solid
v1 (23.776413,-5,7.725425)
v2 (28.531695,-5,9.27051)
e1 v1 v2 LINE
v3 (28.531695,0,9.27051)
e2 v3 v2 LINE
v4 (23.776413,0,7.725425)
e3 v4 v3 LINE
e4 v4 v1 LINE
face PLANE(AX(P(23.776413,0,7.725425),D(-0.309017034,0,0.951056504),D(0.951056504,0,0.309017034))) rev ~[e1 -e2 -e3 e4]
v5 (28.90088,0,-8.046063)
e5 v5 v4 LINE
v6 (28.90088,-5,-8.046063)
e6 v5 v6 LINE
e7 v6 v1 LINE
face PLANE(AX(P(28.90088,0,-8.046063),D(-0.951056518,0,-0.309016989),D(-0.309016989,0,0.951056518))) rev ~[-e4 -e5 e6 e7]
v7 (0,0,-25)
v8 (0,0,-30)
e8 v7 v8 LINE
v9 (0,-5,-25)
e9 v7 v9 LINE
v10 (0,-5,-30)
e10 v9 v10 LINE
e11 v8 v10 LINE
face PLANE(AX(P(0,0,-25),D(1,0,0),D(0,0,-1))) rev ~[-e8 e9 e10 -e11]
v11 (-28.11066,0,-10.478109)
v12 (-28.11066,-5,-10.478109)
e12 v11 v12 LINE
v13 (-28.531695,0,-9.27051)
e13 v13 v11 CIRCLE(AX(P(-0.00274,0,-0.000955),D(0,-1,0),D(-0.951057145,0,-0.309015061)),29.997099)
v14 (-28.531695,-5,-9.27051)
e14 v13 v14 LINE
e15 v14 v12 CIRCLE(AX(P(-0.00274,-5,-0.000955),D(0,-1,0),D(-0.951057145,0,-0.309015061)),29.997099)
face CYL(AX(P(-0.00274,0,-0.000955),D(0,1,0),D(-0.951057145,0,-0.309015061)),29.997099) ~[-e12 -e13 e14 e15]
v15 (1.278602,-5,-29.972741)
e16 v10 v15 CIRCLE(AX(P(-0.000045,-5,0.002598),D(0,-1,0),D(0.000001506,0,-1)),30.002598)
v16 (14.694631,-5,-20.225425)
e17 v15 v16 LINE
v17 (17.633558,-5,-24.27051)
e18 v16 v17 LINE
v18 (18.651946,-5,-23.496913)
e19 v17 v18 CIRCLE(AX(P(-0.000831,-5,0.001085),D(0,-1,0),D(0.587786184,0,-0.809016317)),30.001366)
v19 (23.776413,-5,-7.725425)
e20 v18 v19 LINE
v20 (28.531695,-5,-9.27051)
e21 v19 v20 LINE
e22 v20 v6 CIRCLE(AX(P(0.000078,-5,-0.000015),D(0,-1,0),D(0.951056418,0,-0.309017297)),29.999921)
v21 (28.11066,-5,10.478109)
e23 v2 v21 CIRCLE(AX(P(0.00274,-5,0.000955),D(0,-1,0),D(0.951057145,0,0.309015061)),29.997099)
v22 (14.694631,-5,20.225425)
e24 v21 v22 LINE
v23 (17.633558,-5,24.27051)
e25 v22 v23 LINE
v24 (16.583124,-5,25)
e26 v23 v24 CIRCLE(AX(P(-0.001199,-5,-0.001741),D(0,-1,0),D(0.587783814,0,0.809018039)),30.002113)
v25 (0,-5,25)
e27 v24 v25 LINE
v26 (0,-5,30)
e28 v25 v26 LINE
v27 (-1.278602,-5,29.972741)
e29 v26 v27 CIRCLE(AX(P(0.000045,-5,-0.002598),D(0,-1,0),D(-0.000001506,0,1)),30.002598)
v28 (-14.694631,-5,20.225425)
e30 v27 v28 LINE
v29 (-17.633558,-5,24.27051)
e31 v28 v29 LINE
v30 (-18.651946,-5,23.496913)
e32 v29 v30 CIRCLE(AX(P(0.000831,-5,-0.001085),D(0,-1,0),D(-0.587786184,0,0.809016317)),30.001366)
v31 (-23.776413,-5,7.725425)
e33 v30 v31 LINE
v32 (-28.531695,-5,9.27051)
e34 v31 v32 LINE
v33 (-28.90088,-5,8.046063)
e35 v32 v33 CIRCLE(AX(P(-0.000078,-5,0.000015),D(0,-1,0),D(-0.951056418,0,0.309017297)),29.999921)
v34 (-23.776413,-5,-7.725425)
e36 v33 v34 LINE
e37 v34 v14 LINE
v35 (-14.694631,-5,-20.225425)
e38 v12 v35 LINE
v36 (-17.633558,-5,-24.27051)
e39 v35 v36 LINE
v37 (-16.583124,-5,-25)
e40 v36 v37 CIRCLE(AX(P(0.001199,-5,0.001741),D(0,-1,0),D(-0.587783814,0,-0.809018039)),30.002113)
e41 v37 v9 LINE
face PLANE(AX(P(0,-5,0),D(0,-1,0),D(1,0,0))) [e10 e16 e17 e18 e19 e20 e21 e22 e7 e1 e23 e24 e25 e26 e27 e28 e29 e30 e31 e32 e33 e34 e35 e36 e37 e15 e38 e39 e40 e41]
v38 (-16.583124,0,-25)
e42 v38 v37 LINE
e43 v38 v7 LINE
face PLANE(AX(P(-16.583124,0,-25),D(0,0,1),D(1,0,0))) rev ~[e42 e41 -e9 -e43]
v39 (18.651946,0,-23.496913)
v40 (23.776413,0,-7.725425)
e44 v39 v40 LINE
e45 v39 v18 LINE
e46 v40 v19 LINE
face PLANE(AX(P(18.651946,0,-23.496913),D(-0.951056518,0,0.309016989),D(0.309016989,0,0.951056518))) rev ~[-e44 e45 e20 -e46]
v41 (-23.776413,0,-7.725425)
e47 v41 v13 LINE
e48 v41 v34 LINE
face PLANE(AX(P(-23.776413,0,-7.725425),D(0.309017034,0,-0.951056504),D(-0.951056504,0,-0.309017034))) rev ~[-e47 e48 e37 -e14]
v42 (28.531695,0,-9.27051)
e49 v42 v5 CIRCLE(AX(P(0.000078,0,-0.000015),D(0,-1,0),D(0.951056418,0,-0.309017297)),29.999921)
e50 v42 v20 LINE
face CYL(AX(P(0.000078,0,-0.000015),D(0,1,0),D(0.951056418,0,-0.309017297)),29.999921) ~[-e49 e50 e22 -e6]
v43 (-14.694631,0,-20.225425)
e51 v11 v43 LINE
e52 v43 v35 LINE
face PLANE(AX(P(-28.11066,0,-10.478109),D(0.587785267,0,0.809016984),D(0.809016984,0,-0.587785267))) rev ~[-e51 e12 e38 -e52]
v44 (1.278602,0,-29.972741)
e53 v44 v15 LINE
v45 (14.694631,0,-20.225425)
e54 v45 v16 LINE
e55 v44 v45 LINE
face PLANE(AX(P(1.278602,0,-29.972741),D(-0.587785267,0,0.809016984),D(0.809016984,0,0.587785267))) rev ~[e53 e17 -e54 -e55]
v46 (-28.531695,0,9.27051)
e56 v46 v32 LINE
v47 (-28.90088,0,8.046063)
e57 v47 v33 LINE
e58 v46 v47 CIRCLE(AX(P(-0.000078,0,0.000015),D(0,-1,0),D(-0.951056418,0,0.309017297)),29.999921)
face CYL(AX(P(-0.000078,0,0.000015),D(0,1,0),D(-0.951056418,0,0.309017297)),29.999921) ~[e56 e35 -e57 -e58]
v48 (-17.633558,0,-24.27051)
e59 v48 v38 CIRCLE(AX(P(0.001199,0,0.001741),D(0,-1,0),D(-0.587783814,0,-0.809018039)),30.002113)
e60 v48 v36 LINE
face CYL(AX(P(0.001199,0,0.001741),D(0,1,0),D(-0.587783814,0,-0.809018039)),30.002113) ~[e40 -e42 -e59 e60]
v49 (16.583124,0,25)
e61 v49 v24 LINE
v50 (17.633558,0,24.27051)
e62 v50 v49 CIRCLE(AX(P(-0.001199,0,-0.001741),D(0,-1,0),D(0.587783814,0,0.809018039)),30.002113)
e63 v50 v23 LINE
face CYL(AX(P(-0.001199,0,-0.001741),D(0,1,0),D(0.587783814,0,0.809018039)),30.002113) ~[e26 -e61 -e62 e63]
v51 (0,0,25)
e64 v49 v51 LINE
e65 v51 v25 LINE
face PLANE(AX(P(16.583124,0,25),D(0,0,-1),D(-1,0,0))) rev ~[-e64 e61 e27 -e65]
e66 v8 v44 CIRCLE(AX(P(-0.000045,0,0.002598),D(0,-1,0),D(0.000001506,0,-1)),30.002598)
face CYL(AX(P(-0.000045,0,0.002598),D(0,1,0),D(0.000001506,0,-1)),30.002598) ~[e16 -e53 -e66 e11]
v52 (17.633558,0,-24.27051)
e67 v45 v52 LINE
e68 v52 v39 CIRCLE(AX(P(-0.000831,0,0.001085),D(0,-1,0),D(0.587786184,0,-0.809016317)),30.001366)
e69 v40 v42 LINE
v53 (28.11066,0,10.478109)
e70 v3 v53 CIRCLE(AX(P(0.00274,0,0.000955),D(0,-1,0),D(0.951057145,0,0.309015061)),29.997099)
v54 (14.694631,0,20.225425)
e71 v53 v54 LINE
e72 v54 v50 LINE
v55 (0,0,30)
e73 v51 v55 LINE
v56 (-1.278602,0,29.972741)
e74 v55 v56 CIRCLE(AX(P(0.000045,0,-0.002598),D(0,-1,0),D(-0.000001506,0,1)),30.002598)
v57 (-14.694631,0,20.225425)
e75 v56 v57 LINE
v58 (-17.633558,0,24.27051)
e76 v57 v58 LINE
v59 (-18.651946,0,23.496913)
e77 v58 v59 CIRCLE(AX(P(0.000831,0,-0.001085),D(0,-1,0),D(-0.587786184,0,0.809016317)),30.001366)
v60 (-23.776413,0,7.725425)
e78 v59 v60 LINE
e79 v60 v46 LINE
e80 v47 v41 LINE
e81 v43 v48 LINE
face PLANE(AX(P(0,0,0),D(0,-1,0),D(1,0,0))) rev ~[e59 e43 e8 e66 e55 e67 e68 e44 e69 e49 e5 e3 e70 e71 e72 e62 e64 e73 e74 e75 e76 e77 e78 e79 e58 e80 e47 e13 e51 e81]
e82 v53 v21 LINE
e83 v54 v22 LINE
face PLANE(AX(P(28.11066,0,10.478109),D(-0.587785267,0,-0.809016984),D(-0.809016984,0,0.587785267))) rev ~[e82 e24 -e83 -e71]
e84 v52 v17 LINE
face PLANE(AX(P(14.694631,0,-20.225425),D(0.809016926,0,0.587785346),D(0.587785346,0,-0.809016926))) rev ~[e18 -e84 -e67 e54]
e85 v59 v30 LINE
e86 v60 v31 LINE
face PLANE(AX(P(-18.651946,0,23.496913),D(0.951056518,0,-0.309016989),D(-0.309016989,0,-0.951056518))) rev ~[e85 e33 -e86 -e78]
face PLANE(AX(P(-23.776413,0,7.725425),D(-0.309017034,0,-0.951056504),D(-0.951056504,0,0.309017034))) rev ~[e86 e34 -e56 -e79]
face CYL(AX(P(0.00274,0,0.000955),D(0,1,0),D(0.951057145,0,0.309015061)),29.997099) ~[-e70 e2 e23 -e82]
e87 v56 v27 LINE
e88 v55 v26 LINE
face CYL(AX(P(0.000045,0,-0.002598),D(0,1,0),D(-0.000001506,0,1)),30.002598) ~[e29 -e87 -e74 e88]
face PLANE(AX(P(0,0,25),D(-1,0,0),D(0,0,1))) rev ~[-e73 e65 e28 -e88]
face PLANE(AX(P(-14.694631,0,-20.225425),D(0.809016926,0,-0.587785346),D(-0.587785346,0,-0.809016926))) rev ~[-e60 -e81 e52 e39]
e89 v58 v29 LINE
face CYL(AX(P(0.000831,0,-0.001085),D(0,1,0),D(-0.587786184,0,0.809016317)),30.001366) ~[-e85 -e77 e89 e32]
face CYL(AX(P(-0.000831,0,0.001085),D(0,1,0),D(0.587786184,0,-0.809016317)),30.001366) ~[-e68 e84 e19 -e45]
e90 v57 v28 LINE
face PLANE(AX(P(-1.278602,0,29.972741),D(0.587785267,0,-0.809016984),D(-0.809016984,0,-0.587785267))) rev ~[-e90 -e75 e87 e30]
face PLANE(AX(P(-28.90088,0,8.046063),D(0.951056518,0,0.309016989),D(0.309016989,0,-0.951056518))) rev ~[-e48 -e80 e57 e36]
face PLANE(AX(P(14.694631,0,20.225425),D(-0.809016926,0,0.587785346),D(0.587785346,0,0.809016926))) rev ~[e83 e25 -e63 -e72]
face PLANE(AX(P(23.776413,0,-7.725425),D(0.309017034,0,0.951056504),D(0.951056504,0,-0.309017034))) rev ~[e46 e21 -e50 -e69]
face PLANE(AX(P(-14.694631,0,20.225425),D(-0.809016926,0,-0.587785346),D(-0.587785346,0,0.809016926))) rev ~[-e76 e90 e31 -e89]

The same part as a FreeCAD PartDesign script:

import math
import FreeCAD as App
import Part
import Sketcher

V = App.Vector
Q = App.Units.Quantity

doc = App.newDocument("Part")
params = doc.addObject("Spreadsheet::Sheet", "Params")
for row, (alias, value) in enumerate([
    ("sketch1_height", "5 mm"),
    ("sketch1_height2", "5 mm"),
    ("sketch1_length", "4.999999 mm"),
    ("sketch1_length2", "5 mm"),
    ("sketch1_length3", "5 mm"),
    ("pad1_length", "5 mm"),
], start=1):
    params.set(f"A{row}", alias)
    params.set(f"B{row}", "=" + value)
    params.setAlias(f"B{row}", alias)

body = doc.addObject("PartDesign::Body", "Body")

sketch1 = body.newObject("Sketcher::SketchObject", "Sketch")
sketch1.AttachmentSupport = (doc.getObject("XZ_Plane"), [""])
sketch1.MapMode = "FlatFace"
sketch1.addGeometry(Part.LineSegment(V(23.776413, 7.725425, 0), V(28.531695, 9.27051, 0)), False)
sketch1.addGeometry(Part.ArcOfCircle(Part.Circle(V(0.00274, 0.000955, 0), V(0, 0, 1), 29.997099), math.radians(17.999884), math.radians(20.442809)), False)
sketch1.addGeometry(Part.LineSegment(V(28.11066, 10.478109, 0), V(14.694631, 20.225425, 0)), False)
sketch1.addGeometry(Part.LineSegment(V(14.694631, 20.225425, 0), V(17.633558, 24.27051, 0)), False)
sketch1.addGeometry(Part.ArcOfCircle(Part.Circle(V(-0.001199, -0.001741, 0), V(0, 0, 1), 30.002113), math.radians(54.000102), math.radians(56.44262)), False)
sketch1.addGeometry(Part.LineSegment(V(16.583124, 25, 0), V(0, 25, 0)), False)
sketch1.addGeometry(Part.LineSegment(V(0, 25, 0), V(0, 30, 0)), False)
sketch1.addGeometry(Part.ArcOfCircle(Part.Circle(V(0.000045, -0.002598, 0), V(0, 0, 1), 30.002598), math.radians(90.000086), math.radians(92.442565)), False)
sketch1.addGeometry(Part.LineSegment(V(-1.278602, 29.972741, 0), V(-14.694631, 20.225425, 0)), False)
sketch1.addGeometry(Part.LineSegment(V(-14.694631, 20.225425, 0), V(-17.633558, 24.27051, 0)), False)
sketch1.addGeometry(Part.ArcOfCircle(Part.Circle(V(0.000831, -0.001085, 0), V(0, 0, 1), 30.001366), math.radians(126.000066), math.radians(128.442645)), False)
sketch1.addGeometry(Part.LineSegment(V(-18.651946, 23.496913, 0), V(-23.776413, 7.725425, 0)), False)
sketch1.addGeometry(Part.LineSegment(V(-23.776413, 7.725425, 0), V(-28.531695, 9.27051, 0)), False)
sketch1.addGeometry(Part.ArcOfCircle(Part.Circle(V(-0.000078, 0.000015, 0), V(0, 0, 1), 29.999921), math.radians(161.999982), math.radians(164.442679)), False)
sketch1.addGeometry(Part.LineSegment(V(-28.90088, 8.046063, 0), V(-23.776413, -7.725425, 0)), False)
sketch1.addGeometry(Part.LineSegment(V(-23.776413, -7.725425, 0), V(-28.531695, -9.27051, 0)), False)
sketch1.addGeometry(Part.ArcOfCircle(Part.Circle(V(-0.00274, -0.000955, 0), V(0, 0, 1), 29.997099), math.radians(-162.000116), math.radians(-159.557191)), False)
sketch1.addGeometry(Part.LineSegment(V(-28.11066, -10.478109, 0), V(-14.694631, -20.225425, 0)), False)
sketch1.addGeometry(Part.LineSegment(V(-14.694631, -20.225425, 0), V(-17.633558, -24.27051, 0)), False)
sketch1.addGeometry(Part.ArcOfCircle(Part.Circle(V(0.001199, 0.001741, 0), V(0, 0, 1), 30.002113), math.radians(-125.999898), math.radians(-123.55738)), False)
sketch1.addGeometry(Part.LineSegment(V(-16.583124, -25, 0), V(0, -25, 0)), False)
sketch1.addGeometry(Part.LineSegment(V(0, -25, 0), V(0, -30, 0)), False)
sketch1.addGeometry(Part.ArcOfCircle(Part.Circle(V(-0.000045, 0.002598, 0), V(0, 0, 1), 30.002598), math.radians(-89.999914), math.radians(-87.557435)), False)
sketch1.addGeometry(Part.LineSegment(V(1.278602, -29.972741, 0), V(14.694631, -20.225425, 0)), False)
sketch1.addGeometry(Part.LineSegment(V(14.694631, -20.225425, 0), V(17.633558, -24.27051, 0)), False)
sketch1.addGeometry(Part.ArcOfCircle(Part.Circle(V(-0.000831, 0.001085, 0), V(0, 0, 1), 30.001366), math.radians(-53.999934), math.radians(-51.557355)), False)
sketch1.addGeometry(Part.LineSegment(V(18.651946, -23.496913, 0), V(23.776413, -7.725425, 0)), False)
sketch1.addGeometry(Part.LineSegment(V(23.776413, -7.725425, 0), V(28.531695, -9.27051, 0)), False)
sketch1.addGeometry(Part.ArcOfCircle(Part.Circle(V(0.000078, -0.000015, 0), V(0, 0, 1), 29.999921), math.radians(-18.000018), math.radians(-15.557321)), False)
sketch1.addGeometry(Part.LineSegment(V(28.90088, -8.046063, 0), V(23.776413, 7.725425, 0)), False)
sketch1.addConstraint(Sketcher.Constraint("Coincident", 0, 2, 1, 1))
sketch1.addConstraint(Sketcher.Constraint("Coincident", 1, 2, 2, 1))
sketch1.addConstraint(Sketcher.Constraint("Coincident", 2, 2, 3, 1))
sketch1.addConstraint(Sketcher.Constraint("Coincident", 3, 2, 4, 1))
sketch1.addConstraint(Sketcher.Constraint("Coincident", 4, 2, 5, 1))
sketch1.addConstraint(Sketcher.Constraint("Coincident", 5, 2, 6, 1))
sketch1.addConstraint(Sketcher.Constraint("Coincident", 6, 2, 7, 1))
sketch1.addConstraint(Sketcher.Constraint("Coincident", 7, 2, 8, 1))
sketch1.addConstraint(Sketcher.Constraint("Coincident", 8, 2, 9, 1))
sketch1.addConstraint(Sketcher.Constraint("Coincident", 9, 2, 10, 1))
sketch1.addConstraint(Sketcher.Constraint("Coincident", 10, 2, 11, 1))
sketch1.addConstraint(Sketcher.Constraint("Coincident", 11, 2, 12, 1))
sketch1.addConstraint(Sketcher.Constraint("Coincident", 12, 2, 13, 1))
sketch1.addConstraint(Sketcher.Constraint("Coincident", 13, 2, 14, 1))
sketch1.addConstraint(Sketcher.Constraint("Coincident", 14, 2, 15, 1))
sketch1.addConstraint(Sketcher.Constraint("Coincident", 15, 2, 16, 1))
sketch1.addConstraint(Sketcher.Constraint("Coincident", 16, 2, 17, 1))
sketch1.addConstraint(Sketcher.Constraint("Coincident", 17, 2, 18, 1))
sketch1.addConstraint(Sketcher.Constraint("Coincident", 18, 2, 19, 1))
sketch1.addConstraint(Sketcher.Constraint("Coincident", 19, 2, 20, 1))
sketch1.addConstraint(Sketcher.Constraint("Coincident", 20, 2, 21, 1))
sketch1.addConstraint(Sketcher.Constraint("Coincident", 21, 2, 22, 1))
sketch1.addConstraint(Sketcher.Constraint("Coincident", 22, 2, 23, 1))
sketch1.addConstraint(Sketcher.Constraint("Coincident", 23, 2, 24, 1))
sketch1.addConstraint(Sketcher.Constraint("Coincident", 24, 2, 25, 1))
sketch1.addConstraint(Sketcher.Constraint("Coincident", 25, 2, 26, 1))
sketch1.addConstraint(Sketcher.Constraint("Coincident", 26, 2, 27, 1))
sketch1.addConstraint(Sketcher.Constraint("Coincident", 27, 2, 28, 1))
sketch1.addConstraint(Sketcher.Constraint("Coincident", 28, 2, 29, 1))
sketch1.addConstraint(Sketcher.Constraint("Coincident", 29, 2, 0, 1))
sketch1.addConstraint(Sketcher.Constraint("Horizontal", 5))
sketch1.addConstraint(Sketcher.Constraint("Vertical", 6))
sketch1.addConstraint(Sketcher.Constraint("Horizontal", 20))
sketch1.addConstraint(Sketcher.Constraint("Vertical", 21))
sketch1.addConstraint(Sketcher.Constraint("PointOnObject", 5, 2, -2))
sketch1.addConstraint(Sketcher.Constraint("PointOnObject", 20, 2, -2))
sketch1.addConstraint(Sketcher.Constraint("DistanceY", 6, 1, 6, 2, Q("5 mm")))
sketch1.addConstraint(Sketcher.Constraint("DistanceY", 21, 2, 21, 1, Q("5 mm")))
sketch1.addConstraint(Sketcher.Constraint("Distance", 0, Q("4.999999 mm")))
sketch1.addConstraint(Sketcher.Constraint("Distance", 3, Q("5 mm")))
sketch1.addConstraint(Sketcher.Constraint("Distance", 9, Q("5 mm")))
sketch1.addConstraint(Sketcher.Constraint("Distance", 12, Q("4.999999 mm")))
sketch1.addConstraint(Sketcher.Constraint("Distance", 15, Q("4.999999 mm")))
sketch1.addConstraint(Sketcher.Constraint("Distance", 18, Q("5 mm")))
sketch1.addConstraint(Sketcher.Constraint("Distance", 24, Q("5 mm")))
sketch1.addConstraint(Sketcher.Constraint("Distance", 27, Q("4.999999 mm")))
sketch1.addConstraint(Sketcher.Constraint("DistanceY", -1, 1, 4, 2, Q("25 mm")))
sketch1.addConstraint(Sketcher.Constraint("DistanceY", 19, 2, -1, 1, Q("25 mm")))
sketch1.addConstraint(Sketcher.Constraint("DistanceY", 0, 2, 3, 2, Q("15 mm")))
sketch1.addConstraint(Sketcher.Constraint("DistanceY", 12, 2, 9, 2, Q("15 mm")))
sketch1.addConstraint(Sketcher.Constraint("DistanceY", 18, 2, 15, 2, Q("15 mm")))
sketch1.addConstraint(Sketcher.Constraint("DistanceY", 24, 2, 27, 2, Q("15 mm")))
sketch1.addConstraint(Sketcher.Constraint("Radius", 1, Q("29.997099 mm")))
sketch1.addConstraint(Sketcher.Constraint("Radius", 7, Q("30.002598 mm")))
sketch1.addConstraint(Sketcher.Constraint("Radius", 16, Q("29.997099 mm")))
sketch1.addConstraint(Sketcher.Constraint("Radius", 22, Q("30.002598 mm")))
sketch1.addConstraint(Sketcher.Constraint("DistanceY", 11, 2, 8, 2, Q("12.5 mm")))
sketch1.addConstraint(Sketcher.Constraint("DistanceY", 17, 2, 14, 2, Q("12.5 mm")))
sketch1.addConstraint(Sketcher.Constraint("DistanceY", 23, 2, 26, 2, Q("12.5 mm")))
sketch1.addConstraint(Sketcher.Constraint("DistanceY", 29, 2, 2, 2, Q("12.5 mm")))
sketch1.addConstraint(Sketcher.Constraint("Radius", 13, Q("29.999921 mm")))
sketch1.addConstraint(Sketcher.Constraint("Radius", 28, Q("29.999921 mm")))
sketch1.addConstraint(Sketcher.Constraint("Radius", 4, Q("30.002113 mm")))
sketch1.addConstraint(Sketcher.Constraint("Radius", 10, Q("30.001366 mm")))
sketch1.addConstraint(Sketcher.Constraint("Radius", 19, Q("30.002113 mm")))
sketch1.addConstraint(Sketcher.Constraint("Radius", 25, Q("30.001366 mm")))
sketch1.addConstraint(Sketcher.Constraint("DistanceX", 4, 3, -1, 1, Q("0.001199 mm")))
sketch1.addConstraint(Sketcher.Constraint("DistanceX", -1, 1, 19, 3, Q("0.001199 mm")))
sketch1.addConstraint(Sketcher.Constraint("DistanceX", 7, 2, -1, 1, Q("1.278602 mm")))
sketch1.addConstraint(Sketcher.Constraint("DistanceX", -1, 1, 22, 2, Q("1.278602 mm")))
sketch1.addConstraint(Sketcher.Constraint("DistanceY", 10, 3, 13, 3, Q("0.0011 mm")))
sketch1.addConstraint(Sketcher.Constraint("DistanceY", 28, 3, 25, 3, Q("0.0011 mm")))
sketch1.addConstraint(Sketcher.Constraint("DistanceY", 0, 2, 1, 2, Q("1.207599 mm")))
sketch1.addConstraint(Sketcher.Constraint("DistanceX", 3, 2, 1, 2, Q("10.477102 mm")))
sketch1.addConstraint(Sketcher.Constraint("DistanceX", 8, 2, 25, 3, Q("14.6938 mm")))
sketch1.addConstraint(Sketcher.Constraint("DistanceY", 16, 2, 15, 2, Q("1.207599 mm")))
sketch1.addConstraint(Sketcher.Constraint("DistanceX", 16, 2, 18, 2, Q("10.477102 mm")))
sketch1.addConstraint(Sketcher.Constraint("DistanceX", 10, 3, 23, 2, Q("14.6938 mm")))
sketch1.addConstraint(Sketcher.Constraint("DistanceX", 5, 2, 5, 1, Q("16.583124 mm")))
sketch1.addConstraint(Sketcher.Constraint("DistanceX", 20, 1, 20, 2, Q("16.583124 mm")))
sketch1.addConstraint(Sketcher.Constraint("DistanceX", -1, 1, 1, 3, Q("0.00274 mm")))
sketch1.addConstraint(Sketcher.Constraint("DistanceX", -1, 1, 10, 3, Q("0.000831 mm")))
sketch1.addConstraint(Sketcher.Constraint("DistanceX", 16, 3, -1, 1, Q("0.00274 mm")))
sketch1.addConstraint(Sketcher.Constraint("DistanceX", 25, 3, -1, 1, Q("0.000831 mm")))
sketch1.addConstraint(Sketcher.Constraint("DistanceY", -1, 1, 0, 2, Q("9.27051 mm")))
sketch1.addConstraint(Sketcher.Constraint("DistanceX", -1, 1, 2, 2, Q("14.694631 mm")))
sketch1.addConstraint(Sketcher.Constraint("DistanceY", -1, 1, 7, 2, Q("29.972741 mm")))
sketch1.addConstraint(Sketcher.Constraint("DistanceX", 9, 2, -1, 1, Q("17.633558 mm")))
sketch1.addConstraint(Sketcher.Constraint("DistanceY", -1, 1, 9, 2, Q("24.27051 mm")))
sketch1.addConstraint(Sketcher.Constraint("DistanceX", 13, 2, -1, 1, Q("28.90088 mm")))
sketch1.addConstraint(Sketcher.Constraint("DistanceY", 15, 2, -1, 1, Q("9.27051 mm")))
sketch1.addConstraint(Sketcher.Constraint("DistanceX", 17, 2, -1, 1, Q("14.694631 mm")))
sketch1.addConstraint(Sketcher.Constraint("DistanceY", 22, 2, -1, 1, Q("29.972741 mm")))
sketch1.addConstraint(Sketcher.Constraint("DistanceX", -1, 1, 24, 2, Q("17.633558 mm")))
sketch1.addConstraint(Sketcher.Constraint("DistanceY", 24, 2, -1, 1, Q("24.27051 mm")))
sketch1.addConstraint(Sketcher.Constraint("DistanceX", -1, 1, 28, 2, Q("28.90088 mm")))
sketch1.addConstraint(Sketcher.Constraint("DistanceX", 13, 3, 10, 3, Q("0.000908 mm")))
sketch1.addConstraint(Sketcher.Constraint("DistanceX", 25, 3, 28, 3, Q("0.000908 mm")))
sketch1.addConstraint(Sketcher.Constraint("DistanceX", 10, 2, 9, 2, Q("1.018388 mm")))
sketch1.addConstraint(Sketcher.Constraint("DistanceX", 24, 2, 25, 2, Q("1.018388 mm")))
sketch1.setExpression("Constraints[36]", "Params.sketch1_height")
sketch1.setExpression("Constraints[37]", "Params.sketch1_height2")
sketch1.setExpression("Constraints[38]", "Params.sketch1_length")
sketch1.setExpression("Constraints[39]", "Params.sketch1_length2")
sketch1.setExpression("Constraints[40]", "Params.sketch1_length3")
pad1 = body.newObject("PartDesign::Pad", "Pad")
pad1.Profile = sketch1
pad1.setExpression("Length", "Params.pad1_length")

doc.recompute()
